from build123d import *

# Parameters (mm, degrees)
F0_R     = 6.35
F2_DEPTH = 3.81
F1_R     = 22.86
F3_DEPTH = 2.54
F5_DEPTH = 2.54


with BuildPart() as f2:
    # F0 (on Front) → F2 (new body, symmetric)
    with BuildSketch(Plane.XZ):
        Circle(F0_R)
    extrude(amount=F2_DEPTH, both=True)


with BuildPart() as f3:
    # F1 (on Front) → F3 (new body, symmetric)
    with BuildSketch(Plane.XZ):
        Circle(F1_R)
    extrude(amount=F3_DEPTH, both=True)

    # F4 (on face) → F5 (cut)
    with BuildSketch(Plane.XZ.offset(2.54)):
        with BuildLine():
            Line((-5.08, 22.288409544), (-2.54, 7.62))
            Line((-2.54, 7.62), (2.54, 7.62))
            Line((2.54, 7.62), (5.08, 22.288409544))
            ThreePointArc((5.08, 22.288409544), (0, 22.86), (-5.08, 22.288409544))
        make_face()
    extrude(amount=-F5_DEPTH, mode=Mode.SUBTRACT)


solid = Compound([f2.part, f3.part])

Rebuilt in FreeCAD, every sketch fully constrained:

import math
import FreeCAD as App
import Part
import Sketcher
Q = App.Units.Quantity

doc = App.newDocument("Part")
body = doc.addObject("PartDesign::Body", "Body")

sketch1 = body.newObject("Sketcher::SketchObject", "Sketch")
sketch1.AttachmentSupport = (doc.getObject("XZ_Plane"), [""])
sketch1.MapMode = "FlatFace"
sketch1.addGeometry(Part.Circle(App.Vector(0, 0, 0), App.Vector(0, 0, 1), 6.35), False)
sketch1.addConstraint([
    Sketcher.Constraint("Coincident", 0, 3, -1, 1),
    Sketcher.Constraint("Diameter", 0, Q("0.5 in")),
])
pad1 = body.newObject("PartDesign::Pad", "Pad")
pad1.Profile = sketch1
pad1.Length = Q("0.3 in")
pad1.Midplane = True
body2 = doc.addObject("PartDesign::Body", "Body001")

sketch2 = body2.newObject("Sketcher::SketchObject", "Sketch001")
sketch2.AttachmentSupport = (doc.getObject("XZ_Plane001"), [""])
sketch2.MapMode = "FlatFace"
sketch2.addGeometry(Part.Circle(App.Vector(0, 0, 0), App.Vector(0, 0, 1), 22.86), False)
sketch2.addConstraint([
    Sketcher.Constraint("Coincident", 0, 3, -1, 1),
    Sketcher.Constraint("Diameter", 0, Q("1.8 in")),
])
pad2 = body2.newObject("PartDesign::Pad", "Pad001")
pad2.Profile = sketch2
pad2.Length = Q("0.2 in")
pad2.Midplane = True

sketch3 = body2.newObject("Sketcher::SketchObject", "Sketch002")
sketch3.AttachmentSupport = (doc.getObject("XZ_Plane001"), [""])
sketch3.MapMode = "FlatFace"
sketch3.AttachmentOffset = App.Placement(App.Vector(0, 0, 0.1 * 25.4), App.Rotation())
sketch3.addGeometry([
    Part.LineSegment(App.Vector(-5.08, 22.28841, 0), App.Vector(-2.54, 7.62, 0)),
    Part.LineSegment(App.Vector(-2.54, 7.62, 0), App.Vector(2.54, 7.62, 0)),
    Part.LineSegment(App.Vector(2.54, 7.62, 0), App.Vector(5.08, 22.28841, 0)),
    Part.ArcOfCircle(Part.Circle(App.Vector(0, 0, 0), App.Vector(0, 0, 1), 22.86), math.radians(77.160412), math.radians(102.839588)),
], False)
sketch3.addConstraint([
    Sketcher.Constraint("Coincident", 0, 2, 1, 1),
    Sketcher.Constraint("Coincident", 1, 2, 2, 1),
    Sketcher.Constraint("Coincident", 2, 2, 3, 1),
    Sketcher.Constraint("Coincident", 3, 2, 0, 1),
    Sketcher.Constraint("Horizontal", 1),
    Sketcher.Constraint("Coincident", 3, 3, -1, 1),
    Sketcher.Constraint("Horizontal", 2, 2, 3, 2),
    Sketcher.Constraint("Equal", 0, 2),
    Sketcher.Constraint("Radius", 3, Q("0.9 in")),
    Sketcher.Constraint("DistanceX", 1, 1, 1, 2, Q("0.2 in")),
    Sketcher.Constraint("DistanceY", -1, 1, 0, 2, Q("0.3 in")),
    Sketcher.Constraint("DistanceX", -1, 1, 2, 2, Q("0.2 in")),
])
pocket1 = body2.newObject("PartDesign::Pocket", "Pocket")
pocket1.Profile = sketch3
pocket1.Length = Q("0.1 in")

doc.recompute()
